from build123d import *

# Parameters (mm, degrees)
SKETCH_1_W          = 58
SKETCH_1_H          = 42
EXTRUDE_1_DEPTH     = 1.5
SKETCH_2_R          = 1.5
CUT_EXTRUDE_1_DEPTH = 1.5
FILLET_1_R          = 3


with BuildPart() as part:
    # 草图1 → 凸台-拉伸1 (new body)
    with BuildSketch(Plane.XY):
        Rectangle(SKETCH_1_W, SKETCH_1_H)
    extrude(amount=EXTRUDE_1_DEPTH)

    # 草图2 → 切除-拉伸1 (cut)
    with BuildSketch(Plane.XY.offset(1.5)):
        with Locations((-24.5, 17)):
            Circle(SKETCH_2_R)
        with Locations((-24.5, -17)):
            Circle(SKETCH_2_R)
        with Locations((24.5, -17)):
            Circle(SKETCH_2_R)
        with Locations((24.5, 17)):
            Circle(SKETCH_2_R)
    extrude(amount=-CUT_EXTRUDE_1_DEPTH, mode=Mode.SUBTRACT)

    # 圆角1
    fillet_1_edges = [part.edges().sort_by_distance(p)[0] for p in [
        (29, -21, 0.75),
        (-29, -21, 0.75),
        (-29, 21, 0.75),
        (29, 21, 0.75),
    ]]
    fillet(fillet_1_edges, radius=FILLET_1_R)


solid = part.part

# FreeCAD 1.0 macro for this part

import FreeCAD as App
import Part
import Sketcher
from FreeCAD import Vector


def edges_at(feature, points):
    """Names of the edges that pass closest to the given points."""
    edges = feature.Shape.Edges
    near = lambda p: min(range(len(edges)), key=lambda i: edges[i].distToShape(Part.Vertex(*p))[0])
    return sorted({f"Edge{near(p) + 1}" for p in points})

doc = App.newDocument("Part")
body = doc.addObject("PartDesign::Body", "Body")

# Sketch on XY plane
sketch1 = body.newObject("Sketcher::SketchObject", "Sketch")
sketch1.AttachmentSupport = (doc.getObject("XY_Plane"), [""])
sketch1.MapMode = "FlatFace"
sketch1.addGeometry(Part.LineSegment(Vector(-29, 21, 0), Vector(-29, -21, 0)), False)
sketch1.addGeometry(Part.LineSegment(Vector(-29, -21, 0), Vector(29, -21, 0)), False)
sketch1.addGeometry(Part.LineSegment(Vector(29, -21, 0), Vector(29, 21, 0)), False)
sketch1.addGeometry(Part.LineSegment(Vector(29, 21, 0), Vector(-29, 21, 0)), False)
sketch1.addConstraint(Sketcher.Constraint("Coincident", 0, 2, 1, 1))
sketch1.addConstraint(Sketcher.Constraint("Coincident", 1, 2, 2, 1))
sketch1.addConstraint(Sketcher.Constraint("Coincident", 2, 2, 3, 1))
sketch1.addConstraint(Sketcher.Constraint("Coincident", 3, 2, 0, 1))
sketch1.addConstraint(Sketcher.Constraint("Vertical", 0))
sketch1.addConstraint(Sketcher.Constraint("Horizontal", 1))
sketch1.addConstraint(Sketcher.Constraint("Vertical", 2))
sketch1.addConstraint(Sketcher.Constraint("Horizontal", 3))
sketch1.addConstraint(Sketcher.Constraint("Symmetric", 0, 2, 2, 2, -1, 1))
sketch1.addConstraint(Sketcher.Constraint("DistanceX", 1, 1, 1, 2, 58.0))
sketch1.addConstraint(Sketcher.Constraint("DistanceY", 0, 2, 0, 1, 42.0))
pad1 = body.newObject("PartDesign::Pad", "Pad")
pad1.Profile = sketch1
pad1.Length = 1.5

# Sketch on XY plane
sketch2 = body.newObject("Sketcher::SketchObject", "Sketch001")
sketch2.AttachmentSupport = (doc.getObject("XY_Plane"), [""])
sketch2.MapMode = "FlatFace"
sketch2.AttachmentOffset = App.Placement(Vector(0, 0, 1.5), App.Rotation())
sketch2.addGeometry(Part.Circle(Vector(-24.5, 17, 0), Vector(0, 0, 1), 1.5), False)
sketch2.addGeometry(Part.Circle(Vector(-24.5, -17, 0), Vector(0, 0, 1), 1.5), False)
sketch2.addGeometry(Part.Circle(Vector(24.5, -17, 0), Vector(0, 0, 1), 1.5), False)
sketch2.addGeometry(Part.Circle(Vector(24.5, 17, 0), Vector(0, 0, 1), 1.5), False)
sketch2.addConstraint(Sketcher.Constraint("Equal", 0, 1))
sketch2.addConstraint(Sketcher.Constraint("Equal", 1, 2))
sketch2.addConstraint(Sketcher.Constraint("Equal", 2, 3))
sketch2.addConstraint(Sketcher.Constraint("Symmetric", 0, 3, 2, 3, -1, 1))
sketch2.addConstraint(Sketcher.Constraint("Symmetric", 1, 3, 3, 3, -1, 1))
sketch2.addConstraint(Sketcher.Constraint("Symmetric", 1, 3, 2, 3, -2))
sketch2.addConstraint(Sketcher.Constraint("Diameter", 0, 3.0))
sketch2.addConstraint(Sketcher.Constraint("DistanceY", -1, 1, 0, 3, 17.0))
sketch2.addConstraint(Sketcher.Constraint("DistanceX", 1, 3, 2, 3, 49.0))
pocket1 = body.newObject("PartDesign::Pocket", "Pocket")
pocket1.Profile = sketch2
pocket1.Length = 1.5
doc.recompute()

fillet = body.newObject("PartDesign::Fillet", "Fillet")
fillet.Base = (pocket1, edges_at(pocket1, [
    (29, -21, 0.75),
    (-29, -21, 0.75),
    (-29, 21, 0.75),
    (29, 21, 0.75),
]))
fillet.Radius = 3

doc.recompute()
